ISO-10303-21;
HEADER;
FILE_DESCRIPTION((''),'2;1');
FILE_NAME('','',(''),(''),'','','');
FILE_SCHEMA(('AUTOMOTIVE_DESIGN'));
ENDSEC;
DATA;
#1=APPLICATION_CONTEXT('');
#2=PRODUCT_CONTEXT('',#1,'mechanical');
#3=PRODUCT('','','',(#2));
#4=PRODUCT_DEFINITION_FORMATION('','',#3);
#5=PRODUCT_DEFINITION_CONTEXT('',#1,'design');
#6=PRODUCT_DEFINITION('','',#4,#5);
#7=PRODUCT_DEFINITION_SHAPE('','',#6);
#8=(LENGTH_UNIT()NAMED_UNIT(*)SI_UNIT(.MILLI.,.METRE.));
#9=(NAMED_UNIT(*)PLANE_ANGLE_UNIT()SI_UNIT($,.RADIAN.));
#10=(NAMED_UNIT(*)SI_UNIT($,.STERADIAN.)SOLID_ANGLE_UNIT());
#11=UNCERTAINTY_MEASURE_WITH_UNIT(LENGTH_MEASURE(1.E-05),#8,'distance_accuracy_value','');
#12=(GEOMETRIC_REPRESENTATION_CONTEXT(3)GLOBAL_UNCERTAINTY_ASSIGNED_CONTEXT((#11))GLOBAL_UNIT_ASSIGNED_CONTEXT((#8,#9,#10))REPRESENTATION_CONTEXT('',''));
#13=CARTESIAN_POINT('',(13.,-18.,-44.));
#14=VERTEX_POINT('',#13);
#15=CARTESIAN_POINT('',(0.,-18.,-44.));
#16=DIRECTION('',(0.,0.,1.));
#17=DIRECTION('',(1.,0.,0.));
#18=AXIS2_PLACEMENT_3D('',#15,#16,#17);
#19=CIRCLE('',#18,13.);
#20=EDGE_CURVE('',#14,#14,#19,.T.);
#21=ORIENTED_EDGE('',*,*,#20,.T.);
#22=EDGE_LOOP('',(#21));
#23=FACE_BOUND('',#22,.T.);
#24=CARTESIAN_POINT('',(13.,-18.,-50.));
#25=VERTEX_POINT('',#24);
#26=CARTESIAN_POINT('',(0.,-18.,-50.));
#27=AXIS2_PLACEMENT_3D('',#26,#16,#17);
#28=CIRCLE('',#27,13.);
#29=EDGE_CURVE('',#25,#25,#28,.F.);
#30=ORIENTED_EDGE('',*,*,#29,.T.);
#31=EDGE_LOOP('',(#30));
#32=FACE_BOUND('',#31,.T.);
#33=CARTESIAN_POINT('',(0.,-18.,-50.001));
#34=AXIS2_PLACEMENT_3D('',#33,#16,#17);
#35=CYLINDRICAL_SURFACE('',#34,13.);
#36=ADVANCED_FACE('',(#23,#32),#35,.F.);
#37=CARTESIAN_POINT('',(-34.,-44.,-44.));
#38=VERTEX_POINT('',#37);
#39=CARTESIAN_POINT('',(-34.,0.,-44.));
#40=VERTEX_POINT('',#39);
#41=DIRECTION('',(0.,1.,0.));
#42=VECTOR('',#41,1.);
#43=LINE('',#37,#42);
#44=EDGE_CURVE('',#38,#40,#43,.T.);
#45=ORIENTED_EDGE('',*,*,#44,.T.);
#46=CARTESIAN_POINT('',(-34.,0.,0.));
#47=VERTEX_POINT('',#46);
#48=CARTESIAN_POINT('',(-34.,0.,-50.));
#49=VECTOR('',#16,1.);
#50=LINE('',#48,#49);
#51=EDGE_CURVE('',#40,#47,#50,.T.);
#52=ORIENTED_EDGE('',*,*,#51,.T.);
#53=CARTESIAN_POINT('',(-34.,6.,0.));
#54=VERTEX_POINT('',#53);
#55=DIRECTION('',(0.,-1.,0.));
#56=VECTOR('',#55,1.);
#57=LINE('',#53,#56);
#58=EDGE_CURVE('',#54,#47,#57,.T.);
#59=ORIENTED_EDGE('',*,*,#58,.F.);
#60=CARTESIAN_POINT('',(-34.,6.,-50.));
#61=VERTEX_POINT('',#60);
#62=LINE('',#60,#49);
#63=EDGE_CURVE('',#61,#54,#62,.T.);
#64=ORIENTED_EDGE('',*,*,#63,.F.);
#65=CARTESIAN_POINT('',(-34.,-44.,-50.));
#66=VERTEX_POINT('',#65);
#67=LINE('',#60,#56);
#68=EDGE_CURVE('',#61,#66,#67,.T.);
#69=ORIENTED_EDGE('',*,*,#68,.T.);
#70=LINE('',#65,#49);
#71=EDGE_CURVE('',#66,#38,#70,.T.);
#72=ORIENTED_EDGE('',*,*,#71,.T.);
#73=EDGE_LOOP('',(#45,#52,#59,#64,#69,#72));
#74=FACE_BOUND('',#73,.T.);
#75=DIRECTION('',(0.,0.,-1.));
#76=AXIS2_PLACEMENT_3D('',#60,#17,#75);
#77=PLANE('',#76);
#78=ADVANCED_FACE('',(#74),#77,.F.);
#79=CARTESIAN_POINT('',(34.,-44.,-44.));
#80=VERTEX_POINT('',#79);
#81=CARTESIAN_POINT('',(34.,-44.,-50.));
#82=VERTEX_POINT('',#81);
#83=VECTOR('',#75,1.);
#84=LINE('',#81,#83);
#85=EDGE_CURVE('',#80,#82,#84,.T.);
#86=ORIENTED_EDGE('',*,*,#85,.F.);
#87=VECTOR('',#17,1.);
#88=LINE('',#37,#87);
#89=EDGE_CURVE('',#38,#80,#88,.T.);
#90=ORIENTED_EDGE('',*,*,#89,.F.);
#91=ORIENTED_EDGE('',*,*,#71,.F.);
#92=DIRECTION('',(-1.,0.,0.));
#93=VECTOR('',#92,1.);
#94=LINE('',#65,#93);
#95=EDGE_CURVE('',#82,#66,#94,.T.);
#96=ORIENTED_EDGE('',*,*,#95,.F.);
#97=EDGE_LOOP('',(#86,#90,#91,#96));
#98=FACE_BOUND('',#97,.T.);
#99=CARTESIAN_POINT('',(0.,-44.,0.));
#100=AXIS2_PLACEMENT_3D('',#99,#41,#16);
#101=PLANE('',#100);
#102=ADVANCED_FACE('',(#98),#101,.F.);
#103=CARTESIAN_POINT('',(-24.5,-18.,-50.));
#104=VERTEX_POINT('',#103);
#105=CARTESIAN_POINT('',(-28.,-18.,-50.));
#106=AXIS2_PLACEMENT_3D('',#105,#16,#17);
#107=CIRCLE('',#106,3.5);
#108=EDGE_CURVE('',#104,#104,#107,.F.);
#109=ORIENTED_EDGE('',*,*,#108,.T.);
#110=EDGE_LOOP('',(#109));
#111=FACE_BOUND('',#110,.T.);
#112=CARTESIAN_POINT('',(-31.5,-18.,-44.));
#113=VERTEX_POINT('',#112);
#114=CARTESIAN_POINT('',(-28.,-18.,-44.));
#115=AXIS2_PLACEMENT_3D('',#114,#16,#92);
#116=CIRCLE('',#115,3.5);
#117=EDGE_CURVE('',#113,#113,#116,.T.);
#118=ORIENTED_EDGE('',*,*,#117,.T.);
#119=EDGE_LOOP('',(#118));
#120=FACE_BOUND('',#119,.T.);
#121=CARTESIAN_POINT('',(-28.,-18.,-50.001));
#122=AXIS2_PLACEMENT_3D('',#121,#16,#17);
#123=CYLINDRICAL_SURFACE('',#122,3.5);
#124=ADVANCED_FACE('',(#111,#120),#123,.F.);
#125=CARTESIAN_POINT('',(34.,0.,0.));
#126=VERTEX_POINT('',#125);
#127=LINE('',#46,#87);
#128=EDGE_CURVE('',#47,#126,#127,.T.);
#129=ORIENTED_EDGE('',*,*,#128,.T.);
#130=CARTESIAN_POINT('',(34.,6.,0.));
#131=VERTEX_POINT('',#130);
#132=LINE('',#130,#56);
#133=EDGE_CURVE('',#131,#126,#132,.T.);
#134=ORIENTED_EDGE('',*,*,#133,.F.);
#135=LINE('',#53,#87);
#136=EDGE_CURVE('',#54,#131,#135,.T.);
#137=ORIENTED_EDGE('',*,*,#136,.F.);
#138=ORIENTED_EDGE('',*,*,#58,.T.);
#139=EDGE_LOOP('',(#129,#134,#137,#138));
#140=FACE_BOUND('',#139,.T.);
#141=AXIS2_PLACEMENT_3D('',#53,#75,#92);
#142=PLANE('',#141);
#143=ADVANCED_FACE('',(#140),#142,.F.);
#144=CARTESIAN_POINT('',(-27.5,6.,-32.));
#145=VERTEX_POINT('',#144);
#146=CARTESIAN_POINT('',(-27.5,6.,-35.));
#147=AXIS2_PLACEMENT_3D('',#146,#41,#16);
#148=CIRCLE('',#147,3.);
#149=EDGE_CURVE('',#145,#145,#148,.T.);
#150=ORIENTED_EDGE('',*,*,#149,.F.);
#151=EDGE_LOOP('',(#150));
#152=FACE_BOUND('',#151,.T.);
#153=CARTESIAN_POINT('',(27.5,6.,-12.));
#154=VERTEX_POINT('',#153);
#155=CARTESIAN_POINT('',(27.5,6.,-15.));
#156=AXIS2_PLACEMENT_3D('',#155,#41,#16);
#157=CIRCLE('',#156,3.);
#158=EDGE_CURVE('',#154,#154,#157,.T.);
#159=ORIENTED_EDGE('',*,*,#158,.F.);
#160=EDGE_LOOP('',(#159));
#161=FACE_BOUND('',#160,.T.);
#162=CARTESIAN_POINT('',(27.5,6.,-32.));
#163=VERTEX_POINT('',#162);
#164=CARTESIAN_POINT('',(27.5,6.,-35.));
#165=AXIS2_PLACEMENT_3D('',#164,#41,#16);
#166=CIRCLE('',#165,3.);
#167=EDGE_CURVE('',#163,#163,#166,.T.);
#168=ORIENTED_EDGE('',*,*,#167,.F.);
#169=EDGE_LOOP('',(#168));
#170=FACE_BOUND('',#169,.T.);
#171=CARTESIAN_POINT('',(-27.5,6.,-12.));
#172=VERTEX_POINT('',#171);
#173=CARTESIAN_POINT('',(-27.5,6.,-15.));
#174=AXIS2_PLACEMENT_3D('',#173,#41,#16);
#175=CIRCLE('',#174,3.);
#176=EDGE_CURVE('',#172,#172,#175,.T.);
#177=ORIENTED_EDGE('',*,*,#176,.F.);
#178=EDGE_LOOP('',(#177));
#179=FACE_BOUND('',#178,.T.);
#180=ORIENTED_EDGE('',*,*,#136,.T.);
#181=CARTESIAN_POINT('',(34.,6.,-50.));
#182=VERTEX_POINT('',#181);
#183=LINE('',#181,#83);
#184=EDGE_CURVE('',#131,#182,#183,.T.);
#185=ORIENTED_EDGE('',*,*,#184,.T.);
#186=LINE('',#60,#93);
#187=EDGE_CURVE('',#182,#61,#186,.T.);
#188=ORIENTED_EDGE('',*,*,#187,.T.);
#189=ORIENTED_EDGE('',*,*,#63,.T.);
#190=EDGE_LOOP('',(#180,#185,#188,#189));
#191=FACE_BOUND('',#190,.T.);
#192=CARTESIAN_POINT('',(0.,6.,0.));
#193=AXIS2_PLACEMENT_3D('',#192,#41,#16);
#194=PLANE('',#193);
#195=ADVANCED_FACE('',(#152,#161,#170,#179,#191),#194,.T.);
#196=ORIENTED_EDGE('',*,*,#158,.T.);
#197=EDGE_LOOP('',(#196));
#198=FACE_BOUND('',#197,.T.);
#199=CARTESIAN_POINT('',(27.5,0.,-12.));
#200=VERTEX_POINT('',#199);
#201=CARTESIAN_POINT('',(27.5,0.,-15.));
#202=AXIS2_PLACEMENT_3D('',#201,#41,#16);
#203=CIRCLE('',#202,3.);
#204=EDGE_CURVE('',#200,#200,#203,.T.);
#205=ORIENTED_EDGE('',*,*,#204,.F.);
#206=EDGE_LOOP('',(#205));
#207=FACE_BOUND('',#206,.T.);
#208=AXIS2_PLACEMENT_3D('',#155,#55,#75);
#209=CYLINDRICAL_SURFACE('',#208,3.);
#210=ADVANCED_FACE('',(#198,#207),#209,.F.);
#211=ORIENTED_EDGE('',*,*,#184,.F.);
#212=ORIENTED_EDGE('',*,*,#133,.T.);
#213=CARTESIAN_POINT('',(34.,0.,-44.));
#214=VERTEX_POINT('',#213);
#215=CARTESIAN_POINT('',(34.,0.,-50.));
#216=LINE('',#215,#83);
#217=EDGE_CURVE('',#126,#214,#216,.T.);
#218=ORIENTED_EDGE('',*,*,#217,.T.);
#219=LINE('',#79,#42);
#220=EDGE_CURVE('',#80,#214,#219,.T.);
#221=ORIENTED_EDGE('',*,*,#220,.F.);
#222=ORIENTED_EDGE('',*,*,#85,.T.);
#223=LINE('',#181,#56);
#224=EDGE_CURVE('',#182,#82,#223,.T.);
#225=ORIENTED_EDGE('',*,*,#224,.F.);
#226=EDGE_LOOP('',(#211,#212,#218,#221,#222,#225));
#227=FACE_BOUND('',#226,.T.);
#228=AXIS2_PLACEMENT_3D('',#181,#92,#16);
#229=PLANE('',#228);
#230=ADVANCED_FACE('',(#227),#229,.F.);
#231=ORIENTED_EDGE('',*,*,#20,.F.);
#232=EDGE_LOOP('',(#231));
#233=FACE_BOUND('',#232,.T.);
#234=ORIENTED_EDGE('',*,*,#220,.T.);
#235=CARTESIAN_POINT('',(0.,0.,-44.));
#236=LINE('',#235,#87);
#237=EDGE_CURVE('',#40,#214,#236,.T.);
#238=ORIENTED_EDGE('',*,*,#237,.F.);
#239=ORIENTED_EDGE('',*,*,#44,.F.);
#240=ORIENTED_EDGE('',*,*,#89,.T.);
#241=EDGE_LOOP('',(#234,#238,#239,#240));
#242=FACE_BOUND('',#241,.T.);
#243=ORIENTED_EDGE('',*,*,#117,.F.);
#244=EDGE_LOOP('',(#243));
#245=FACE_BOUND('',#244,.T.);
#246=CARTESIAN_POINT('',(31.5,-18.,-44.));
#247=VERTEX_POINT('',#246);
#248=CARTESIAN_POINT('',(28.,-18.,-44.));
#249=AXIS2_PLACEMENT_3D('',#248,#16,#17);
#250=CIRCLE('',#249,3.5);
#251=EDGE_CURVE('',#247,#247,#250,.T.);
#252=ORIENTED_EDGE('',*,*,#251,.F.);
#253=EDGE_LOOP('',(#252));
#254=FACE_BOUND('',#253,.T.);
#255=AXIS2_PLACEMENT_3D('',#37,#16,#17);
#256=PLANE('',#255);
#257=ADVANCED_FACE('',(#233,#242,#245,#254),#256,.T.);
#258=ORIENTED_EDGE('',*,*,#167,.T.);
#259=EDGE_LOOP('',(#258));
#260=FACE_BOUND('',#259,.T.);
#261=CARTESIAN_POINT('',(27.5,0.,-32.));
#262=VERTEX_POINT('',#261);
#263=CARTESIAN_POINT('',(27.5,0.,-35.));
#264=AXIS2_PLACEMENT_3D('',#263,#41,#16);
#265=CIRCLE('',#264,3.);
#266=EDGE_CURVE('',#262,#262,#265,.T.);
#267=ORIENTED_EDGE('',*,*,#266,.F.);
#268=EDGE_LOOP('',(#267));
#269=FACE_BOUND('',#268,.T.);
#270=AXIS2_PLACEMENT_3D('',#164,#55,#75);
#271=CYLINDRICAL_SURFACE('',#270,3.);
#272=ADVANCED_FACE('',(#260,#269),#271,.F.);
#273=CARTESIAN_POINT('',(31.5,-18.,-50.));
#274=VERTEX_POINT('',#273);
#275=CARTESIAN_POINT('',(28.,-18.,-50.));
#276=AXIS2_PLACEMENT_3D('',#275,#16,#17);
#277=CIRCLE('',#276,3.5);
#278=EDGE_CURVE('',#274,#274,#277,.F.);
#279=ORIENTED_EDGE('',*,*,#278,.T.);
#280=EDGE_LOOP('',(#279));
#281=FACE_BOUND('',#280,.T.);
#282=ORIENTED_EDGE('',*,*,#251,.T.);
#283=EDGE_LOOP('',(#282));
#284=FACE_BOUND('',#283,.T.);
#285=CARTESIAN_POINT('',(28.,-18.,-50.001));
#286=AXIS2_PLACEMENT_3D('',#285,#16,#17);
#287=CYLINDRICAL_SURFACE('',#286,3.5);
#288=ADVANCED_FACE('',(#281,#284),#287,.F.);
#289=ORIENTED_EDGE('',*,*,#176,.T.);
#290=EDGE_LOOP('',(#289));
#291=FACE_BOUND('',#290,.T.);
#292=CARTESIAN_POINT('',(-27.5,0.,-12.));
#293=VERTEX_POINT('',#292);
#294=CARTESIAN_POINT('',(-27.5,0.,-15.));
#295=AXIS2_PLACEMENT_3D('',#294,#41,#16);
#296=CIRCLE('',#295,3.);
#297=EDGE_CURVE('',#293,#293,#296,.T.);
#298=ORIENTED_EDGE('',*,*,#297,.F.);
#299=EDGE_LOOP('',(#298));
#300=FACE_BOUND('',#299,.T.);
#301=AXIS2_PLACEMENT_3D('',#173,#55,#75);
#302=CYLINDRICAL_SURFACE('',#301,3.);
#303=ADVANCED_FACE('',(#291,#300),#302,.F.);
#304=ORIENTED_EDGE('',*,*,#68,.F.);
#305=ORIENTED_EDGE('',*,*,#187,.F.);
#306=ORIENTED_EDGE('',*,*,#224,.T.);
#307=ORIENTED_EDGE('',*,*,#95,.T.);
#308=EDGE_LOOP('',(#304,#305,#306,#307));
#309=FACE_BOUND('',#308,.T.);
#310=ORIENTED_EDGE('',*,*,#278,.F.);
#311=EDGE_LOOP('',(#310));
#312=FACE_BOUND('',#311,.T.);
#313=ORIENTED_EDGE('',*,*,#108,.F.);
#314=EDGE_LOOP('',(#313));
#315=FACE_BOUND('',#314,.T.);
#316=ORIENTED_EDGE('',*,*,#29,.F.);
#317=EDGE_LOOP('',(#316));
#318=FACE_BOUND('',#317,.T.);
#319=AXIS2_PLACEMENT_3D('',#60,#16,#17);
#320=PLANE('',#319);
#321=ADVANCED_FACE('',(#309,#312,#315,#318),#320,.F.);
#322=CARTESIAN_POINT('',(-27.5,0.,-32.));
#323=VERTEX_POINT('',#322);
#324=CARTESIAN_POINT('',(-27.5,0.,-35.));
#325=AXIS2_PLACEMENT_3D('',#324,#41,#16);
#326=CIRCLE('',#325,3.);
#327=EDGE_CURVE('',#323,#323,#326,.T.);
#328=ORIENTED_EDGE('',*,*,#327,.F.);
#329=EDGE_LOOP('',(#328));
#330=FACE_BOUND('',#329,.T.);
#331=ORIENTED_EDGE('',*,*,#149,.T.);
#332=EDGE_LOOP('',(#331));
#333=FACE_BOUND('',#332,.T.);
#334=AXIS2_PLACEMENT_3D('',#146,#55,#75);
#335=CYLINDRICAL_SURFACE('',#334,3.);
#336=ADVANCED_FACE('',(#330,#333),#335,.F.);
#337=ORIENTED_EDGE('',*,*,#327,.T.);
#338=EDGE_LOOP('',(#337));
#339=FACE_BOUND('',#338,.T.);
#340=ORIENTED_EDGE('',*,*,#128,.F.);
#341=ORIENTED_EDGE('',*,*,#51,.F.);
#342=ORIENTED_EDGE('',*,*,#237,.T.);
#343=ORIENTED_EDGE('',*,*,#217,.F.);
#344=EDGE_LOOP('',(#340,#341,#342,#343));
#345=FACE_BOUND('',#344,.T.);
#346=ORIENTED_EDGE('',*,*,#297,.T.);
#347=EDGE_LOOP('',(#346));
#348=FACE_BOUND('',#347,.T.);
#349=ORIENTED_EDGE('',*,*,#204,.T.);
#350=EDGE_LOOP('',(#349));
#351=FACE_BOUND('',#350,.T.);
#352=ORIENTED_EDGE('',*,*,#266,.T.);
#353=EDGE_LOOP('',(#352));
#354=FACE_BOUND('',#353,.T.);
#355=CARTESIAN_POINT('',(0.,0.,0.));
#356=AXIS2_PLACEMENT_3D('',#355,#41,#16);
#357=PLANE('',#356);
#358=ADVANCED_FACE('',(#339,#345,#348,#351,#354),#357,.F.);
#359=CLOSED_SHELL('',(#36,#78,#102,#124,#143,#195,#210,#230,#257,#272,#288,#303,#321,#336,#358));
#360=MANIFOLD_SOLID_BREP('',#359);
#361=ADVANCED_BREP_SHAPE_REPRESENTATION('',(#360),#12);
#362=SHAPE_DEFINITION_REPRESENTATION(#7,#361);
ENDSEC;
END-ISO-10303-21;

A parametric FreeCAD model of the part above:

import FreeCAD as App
import Part
import Sketcher

doc = App.newDocument("Part")
body = doc.addObject("PartDesign::Body", "Body")

sketch1 = body.newObject("Sketcher::SketchObject", "Sketch")
sketch1.AttachmentSupport = (doc.getObject("XZ_Plane"), [""])
sketch1.MapMode = "FlatFace"
sketch1.addGeometry(Part.LineSegment(App.Vector(-34, -50, 0), App.Vector(-34, 0, 0)), False)
sketch1.addGeometry(Part.LineSegment(App.Vector(-34, 0, 0), App.Vector(34, 0, 0)), False)
sketch1.addGeometry(Part.LineSegment(App.Vector(34, 0, 0), App.Vector(34, -50, 0)), False)
sketch1.addGeometry(Part.LineSegment(App.Vector(34, -50, 0), App.Vector(-34, -50, 0)), False)
sketch1.addGeometry(Part.Circle(App.Vector(-27.5, -15, 0), App.Vector(0, 0, 1), 3), False)
sketch1.addGeometry(Part.Circle(App.Vector(27.5, -15, 0), App.Vector(0, 0, 1), 3), False)
sketch1.addGeometry(Part.Circle(App.Vector(-27.5, -35, 0), App.Vector(0, 0, 1), 3), False)
sketch1.addGeometry(Part.Circle(App.Vector(27.5, -35, 0), App.Vector(0, 0, 1), 3), False)
sketch1.addConstraint(Sketcher.Constraint("Coincident", 0, 2, 1, 1))
sketch1.addConstraint(Sketcher.Constraint("Coincident", 1, 2, 2, 1))
sketch1.addConstraint(Sketcher.Constraint("Coincident", 2, 2, 3, 1))
sketch1.addConstraint(Sketcher.Constraint("Coincident", 3, 2, 0, 1))
sketch1.addConstraint(Sketcher.Constraint("Vertical", 0))
sketch1.addConstraint(Sketcher.Constraint("Horizontal", 1))
sketch1.addConstraint(Sketcher.Constraint("Vertical", 2))
sketch1.addConstraint(Sketcher.Constraint("Horizontal", 3))
sketch1.addConstraint(Sketcher.Constraint("Equal", 4, 5))
sketch1.addConstraint(Sketcher.Constraint("Equal", 5, 6))
sketch1.addConstraint(Sketcher.Constraint("Equal", 6, 7))
sketch1.addConstraint(Sketcher.Constraint("Symmetric", 0, 2, 1, 2, -1, 1))
sketch1.addConstraint(Sketcher.Constraint("Symmetric", 4, 3, 5, 3, -2))
sketch1.addConstraint(Sketcher.Constraint("Symmetric", 6, 3, 7, 3, -2))
sketch1.addConstraint(Sketcher.Constraint("Vertical", 4, 3, 6, 3))
sketch1.addConstraint(Sketcher.Constraint("Diameter", 4, 6.0))
sketch1.addConstraint(Sketcher.Constraint("DistanceX", 1, 1, 1, 2, 68.0))
sketch1.addConstraint(Sketcher.Constraint("DistanceY", 0, 1, 0, 2, 50.0))
sketch1.addConstraint(Sketcher.Constraint("DistanceY", 4, 3, -1, 1, 15.0))
sketch1.addConstraint(Sketcher.Constraint("DistanceY", 6, 3, -1, 1, 35.0))
sketch1.addConstraint(Sketcher.Constraint("DistanceX", 4, 3, 5, 3, 55.0))
pad1 = body.newObject("PartDesign::Pad", "Pad")
pad1.Profile = sketch1
pad1.Length = 6
pad1.Reversed = True

sketch2 = body.newObject("Sketcher::SketchObject", "Sketch001")
sketch2.AttachmentSupport = (doc.getObject("XZ_Plane"), [""])
sketch2.MapMode = "FlatFace"
sketch2.AttachmentOffset = App.Placement(App.Vector(0, 0, -6), App.Rotation())
sketch2.addGeometry(Part.LineSegment(App.Vector(-34, -50, 0), App.Vector(-34, -44, 0)), False)
sketch2.addGeometry(Part.LineSegment(App.Vector(-34, -44, 0), App.Vector(34, -44, 0)), False)
sketch2.addGeometry(Part.LineSegment(App.Vector(34, -44, 0), App.Vector(34, -50, 0)), False)
sketch2.addGeometry(Part.LineSegment(App.Vector(34, -50, 0), App.Vector(-34, -50, 0)), False)
sketch2.addConstraint(Sketcher.Constraint("Coincident", 0, 2, 1, 1))
sketch2.addConstraint(Sketcher.Constraint("Coincident", 1, 2, 2, 1))
sketch2.addConstraint(Sketcher.Constraint("Coincident", 2, 2, 3, 1))
sketch2.addConstraint(Sketcher.Constraint("Coincident", 3, 2, 0, 1))
sketch2.addConstraint(Sketcher.Constraint("Vertical", 0))
sketch2.addConstraint(Sketcher.Constraint("Horizontal", 1))
sketch2.addConstraint(Sketcher.Constraint("Vertical", 2))
sketch2.addConstraint(Sketcher.Constraint("Horizontal", 3))
sketch2.addConstraint(Sketcher.Constraint("DistanceX", 1, 1, 1, 2, 68.0))
sketch2.addConstraint(Sketcher.Constraint("DistanceY", 0, 1, 0, 2, 6.0))
sketch2.addConstraint(Sketcher.Constraint("DistanceX", 0, 2, -1, 1, 34.0))
sketch2.addConstraint(Sketcher.Constraint("DistanceY", 0, 2, -1, 1, 44.0))
pad2 = body.newObject("PartDesign::Pad", "Pad001")
pad2.Profile = sketch2
pad2.Length = 50

sketch3 = body.newObject("Sketcher::SketchObject", "Sketch002")
sketch3.AttachmentSupport = (doc.getObject("XY_Plane"), [""])
sketch3.MapMode = "FlatFace"
sketch3.AttachmentOffset = App.Placement(App.Vector(0, 0, -44), App.Rotation())
sketch3.addGeometry(Part.Circle(App.Vector(0, -18, 0), App.Vector(0, 0, 1), 13), False)
sketch3.addConstraint(Sketcher.Constraint("PointOnObject", 0, 3, -2))
sketch3.addConstraint(Sketcher.Constraint("Diameter", 0, 26.0))
sketch3.addConstraint(Sketcher.Constraint("DistanceY", 0, 3, -1, 1, 18.0))
pocket1 = body.newObject("PartDesign::Pocket", "Pocket")
pocket1.Profile = sketch3
pocket1.Type = "UpToFirst"

sketch4 = body.newObject("Sketcher::SketchObject", "Sketch003")
sketch4.AttachmentSupport = (doc.getObject("XY_Plane"), [""])
sketch4.MapMode = "FlatFace"
sketch4.AttachmentOffset = App.Placement(App.Vector(0, 0, -44), App.Rotation())
sketch4.addGeometry(Part.Circle(App.Vector(28, -18, 0), App.Vector(0, 0, 1), 3.5), False)
sketch4.addConstraint(Sketcher.Constraint("Diameter", 0, 7.0))
sketch4.addConstraint(Sketcher.Constraint("DistanceX", -1, 1, 0, 3, 28.0))
sketch4.addConstraint(Sketcher.Constraint("DistanceY", 0, 3, -1, 1, 18.0))
pocket2 = body.newObject("PartDesign::Pocket", "Pocket001")
pocket2.Profile = sketch4
pocket2.Type = "UpToFirst"

sketch5 = body.newObject("Sketcher::SketchObject", "Sketch004")
sketch5.AttachmentSupport = (doc.getObject("XY_Plane"), [""])
sketch5.MapMode = "FlatFace"
sketch5.AttachmentOffset = App.Placement(App.Vector(0, 0, -44), App.Rotation())
sketch5.addGeometry(Part.Circle(App.Vector(-28, -18, 0), App.Vector(0, 0, 1), 3.5), False)
sketch5.addConstraint(Sketcher.Constraint("Diameter", 0, 7.0))
sketch5.addConstraint(Sketcher.Constraint("DistanceX", 0, 3, -1, 1, 28.0))
sketch5.addConstraint(Sketcher.Constraint("DistanceY", 0, 3, -1, 1, 18.0))
pocket3 = body.newObject("PartDesign::Pocket", "Pocket002")
pocket3.Profile = sketch5
pocket3.Type = "UpToFirst"

doc.recompute()
